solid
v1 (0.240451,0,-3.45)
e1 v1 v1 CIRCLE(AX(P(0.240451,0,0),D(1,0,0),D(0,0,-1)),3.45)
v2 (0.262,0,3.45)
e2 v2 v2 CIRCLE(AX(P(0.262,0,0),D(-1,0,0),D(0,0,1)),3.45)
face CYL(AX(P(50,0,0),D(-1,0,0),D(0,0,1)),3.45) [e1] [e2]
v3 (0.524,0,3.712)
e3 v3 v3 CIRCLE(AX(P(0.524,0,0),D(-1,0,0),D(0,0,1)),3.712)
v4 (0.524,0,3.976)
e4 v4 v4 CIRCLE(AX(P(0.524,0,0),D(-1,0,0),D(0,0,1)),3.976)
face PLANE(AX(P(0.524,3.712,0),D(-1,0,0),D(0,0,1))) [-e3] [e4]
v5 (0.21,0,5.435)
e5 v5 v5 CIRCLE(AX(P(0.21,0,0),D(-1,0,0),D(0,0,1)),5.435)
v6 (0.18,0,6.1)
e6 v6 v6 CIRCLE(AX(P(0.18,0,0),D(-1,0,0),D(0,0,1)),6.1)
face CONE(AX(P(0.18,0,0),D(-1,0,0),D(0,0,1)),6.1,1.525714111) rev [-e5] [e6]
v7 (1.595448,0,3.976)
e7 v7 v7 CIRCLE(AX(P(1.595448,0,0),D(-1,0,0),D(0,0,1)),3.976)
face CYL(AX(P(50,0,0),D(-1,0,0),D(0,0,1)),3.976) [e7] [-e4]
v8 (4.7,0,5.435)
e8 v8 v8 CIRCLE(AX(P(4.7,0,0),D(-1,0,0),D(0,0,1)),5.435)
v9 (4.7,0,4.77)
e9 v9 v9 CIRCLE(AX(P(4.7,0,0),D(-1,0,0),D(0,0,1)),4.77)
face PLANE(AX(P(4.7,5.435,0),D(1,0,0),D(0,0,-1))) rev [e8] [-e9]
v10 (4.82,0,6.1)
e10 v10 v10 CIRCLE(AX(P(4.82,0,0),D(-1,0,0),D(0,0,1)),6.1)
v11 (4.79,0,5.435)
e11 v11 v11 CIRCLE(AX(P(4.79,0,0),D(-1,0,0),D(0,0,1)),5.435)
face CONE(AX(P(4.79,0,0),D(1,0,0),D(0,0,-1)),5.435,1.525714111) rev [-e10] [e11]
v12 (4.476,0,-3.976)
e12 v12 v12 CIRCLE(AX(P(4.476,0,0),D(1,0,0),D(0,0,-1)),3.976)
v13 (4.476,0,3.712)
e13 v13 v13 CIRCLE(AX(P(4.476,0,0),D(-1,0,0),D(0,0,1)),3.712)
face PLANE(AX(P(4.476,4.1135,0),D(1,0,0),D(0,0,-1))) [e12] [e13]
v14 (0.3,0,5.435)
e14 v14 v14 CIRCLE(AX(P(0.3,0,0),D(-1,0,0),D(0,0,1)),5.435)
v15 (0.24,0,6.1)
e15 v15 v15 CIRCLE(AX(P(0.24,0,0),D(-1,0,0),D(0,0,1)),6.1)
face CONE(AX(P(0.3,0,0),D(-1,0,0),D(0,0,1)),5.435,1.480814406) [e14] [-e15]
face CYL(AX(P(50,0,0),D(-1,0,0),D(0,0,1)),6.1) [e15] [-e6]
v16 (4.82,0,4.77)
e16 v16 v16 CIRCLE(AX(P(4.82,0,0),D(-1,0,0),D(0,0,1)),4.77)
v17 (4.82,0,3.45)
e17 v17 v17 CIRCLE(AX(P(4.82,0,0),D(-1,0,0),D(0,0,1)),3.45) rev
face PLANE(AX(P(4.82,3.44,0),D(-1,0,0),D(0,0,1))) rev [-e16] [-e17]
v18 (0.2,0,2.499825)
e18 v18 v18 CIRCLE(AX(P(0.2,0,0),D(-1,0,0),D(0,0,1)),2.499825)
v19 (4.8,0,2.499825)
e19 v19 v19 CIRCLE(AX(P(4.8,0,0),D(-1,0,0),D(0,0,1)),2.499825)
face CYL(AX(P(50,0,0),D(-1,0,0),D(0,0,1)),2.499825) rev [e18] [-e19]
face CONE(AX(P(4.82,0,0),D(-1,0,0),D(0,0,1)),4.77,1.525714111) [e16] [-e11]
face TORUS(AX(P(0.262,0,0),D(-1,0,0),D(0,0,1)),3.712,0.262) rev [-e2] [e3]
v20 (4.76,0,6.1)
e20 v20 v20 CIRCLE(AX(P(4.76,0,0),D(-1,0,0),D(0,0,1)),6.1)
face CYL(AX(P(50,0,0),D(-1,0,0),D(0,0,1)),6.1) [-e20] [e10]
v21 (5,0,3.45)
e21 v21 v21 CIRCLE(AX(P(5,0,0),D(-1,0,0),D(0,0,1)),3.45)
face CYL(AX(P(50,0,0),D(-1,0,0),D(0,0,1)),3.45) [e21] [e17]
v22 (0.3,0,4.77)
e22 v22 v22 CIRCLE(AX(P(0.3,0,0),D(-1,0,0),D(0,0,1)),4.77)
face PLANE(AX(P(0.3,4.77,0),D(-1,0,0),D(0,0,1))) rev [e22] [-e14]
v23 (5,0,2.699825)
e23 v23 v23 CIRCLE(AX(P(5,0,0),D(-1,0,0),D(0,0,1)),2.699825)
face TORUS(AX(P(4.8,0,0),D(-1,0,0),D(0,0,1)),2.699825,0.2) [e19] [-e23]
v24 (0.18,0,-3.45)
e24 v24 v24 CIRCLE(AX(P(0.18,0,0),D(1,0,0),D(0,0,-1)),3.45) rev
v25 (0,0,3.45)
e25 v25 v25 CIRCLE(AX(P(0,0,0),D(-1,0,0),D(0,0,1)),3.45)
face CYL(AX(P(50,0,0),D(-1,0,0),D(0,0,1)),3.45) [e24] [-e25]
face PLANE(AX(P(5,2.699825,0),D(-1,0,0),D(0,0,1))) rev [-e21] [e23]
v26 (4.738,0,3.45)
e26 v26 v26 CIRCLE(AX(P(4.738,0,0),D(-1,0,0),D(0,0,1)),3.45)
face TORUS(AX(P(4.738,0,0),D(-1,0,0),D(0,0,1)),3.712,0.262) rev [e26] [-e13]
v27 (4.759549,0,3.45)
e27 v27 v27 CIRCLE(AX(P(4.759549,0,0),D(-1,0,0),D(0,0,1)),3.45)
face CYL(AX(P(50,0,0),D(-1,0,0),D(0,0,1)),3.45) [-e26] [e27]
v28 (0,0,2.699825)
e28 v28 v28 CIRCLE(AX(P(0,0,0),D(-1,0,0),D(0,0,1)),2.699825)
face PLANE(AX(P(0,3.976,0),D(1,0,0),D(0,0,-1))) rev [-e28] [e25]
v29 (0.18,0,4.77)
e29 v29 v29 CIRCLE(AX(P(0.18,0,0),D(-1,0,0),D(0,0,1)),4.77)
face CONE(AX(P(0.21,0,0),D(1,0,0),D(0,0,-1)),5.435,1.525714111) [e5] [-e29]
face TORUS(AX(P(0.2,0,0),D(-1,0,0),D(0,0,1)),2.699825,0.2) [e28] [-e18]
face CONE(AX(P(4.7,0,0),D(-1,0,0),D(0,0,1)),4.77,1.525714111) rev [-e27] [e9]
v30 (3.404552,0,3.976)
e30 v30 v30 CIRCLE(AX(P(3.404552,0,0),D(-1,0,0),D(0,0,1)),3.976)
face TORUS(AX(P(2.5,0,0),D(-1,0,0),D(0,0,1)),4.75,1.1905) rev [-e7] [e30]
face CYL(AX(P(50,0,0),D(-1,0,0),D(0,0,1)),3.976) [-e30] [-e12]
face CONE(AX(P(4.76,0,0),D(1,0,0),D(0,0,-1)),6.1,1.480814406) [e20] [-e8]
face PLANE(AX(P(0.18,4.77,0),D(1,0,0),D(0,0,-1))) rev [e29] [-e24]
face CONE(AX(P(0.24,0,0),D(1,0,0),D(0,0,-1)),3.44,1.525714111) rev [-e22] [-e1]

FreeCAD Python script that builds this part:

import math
import FreeCAD as App
import Part
import Sketcher

V = App.Vector


def add_polygon(sketch, points):
    """Adds a closed chain of lines whose ends are joined by coincident constraints."""
    first, n = sketch.GeometryCount, len(points)
    for a, b in zip(points, points[1:] + points[:1]):
        sketch.addGeometry(Part.LineSegment(App.Vector(*a, 0), App.Vector(*b, 0)), False)
    for i in range(n):
        sketch.addConstraint(Sketcher.Constraint("Coincident", first + i, 2, first + (i + 1) % n, 1))

doc = App.newDocument("Part")
body = doc.addObject("PartDesign::Body", "Body")

# Sketch on XY plane
sketch1 = body.newObject("Sketcher::SketchObject", "Sketch")
sketch1.AttachmentSupport = (doc.getObject("XY_Plane"), [""])
sketch1.MapMode = "FlatFace"
sketch1.addGeometry([
    Part.LineSegment(V(0.2, 2.5, 0), V(4.8, 2.5, 0)),  # 0
    Part.ArcOfCircle(Part.Circle(V(4.8, 2.7, 0), V(0, 0, 1), 0.2), math.radians(-90), math.radians(0)),  # 1
    Part.LineSegment(V(5, 2.7, 0), V(5, 3.98, 0)),  # 2
    Part.LineSegment(V(5, 3.98, 0), V(3.4, 3.98, 0)),  # 3
    Part.ArcOfCircle(Part.Circle(V(2.5, 4.75, 0), V(0, 0, 1), 1.19), math.radians(-139), math.radians(-41)),  # 4
    Part.LineSegment(V(1.6, 3.98, 0), V(0, 3.98, 0)),  # 5
    Part.LineSegment(V(0, 3.98, 0), V(0, 2.7, 0)),  # 6
    Part.ArcOfCircle(Part.Circle(V(0.2, 2.7, 0), V(0, 0, 1), 0.2), math.radians(-180), math.radians(-90)),  # 7
], False)
sketch1.addConstraint([
    Sketcher.Constraint("Tangent", 0, 2, 1, 1),
    Sketcher.Constraint("Tangent", 1, 2, 2, 1),
    Sketcher.Constraint("Coincident", 2, 2, 3, 1),
    Sketcher.Constraint("Coincident", 3, 2, 4, 2),
    Sketcher.Constraint("Coincident", 4, 1, 5, 1),
    Sketcher.Constraint("Coincident", 5, 2, 6, 1),
    Sketcher.Constraint("Tangent", 6, 2, 7, 1),
    Sketcher.Constraint("Tangent", 7, 2, 0, 1),
    Sketcher.Constraint("Horizontal", 0),
    Sketcher.Constraint("Vertical", 2),
    Sketcher.Constraint("Horizontal", 3),
    Sketcher.Constraint("Horizontal", 5),
    Sketcher.Constraint("Vertical", 6),
    Sketcher.Constraint("Equal", 1, 7),
    Sketcher.Constraint("PointOnObject", 5, 2, -2),
    Sketcher.Constraint("Horizontal", 3, 2, 4, 1),
    Sketcher.Constraint("Equal", 3, 5),
    Sketcher.Constraint("Radius", 1, 0.2),
    Sketcher.Constraint("DistanceX", 0, 1, 0, 2, 4.6),
    Sketcher.Constraint("Radius", 4, 1.1905),
    Sketcher.Constraint("DistanceY", -1, 1, 4, 3, 4.75),
    Sketcher.Constraint("DistanceY", -1, 1, 2, 2, 3.976),
    Sketcher.Constraint("DistanceY", 2, 1, 2, 2, 1.276175),
])
revolution = body.newObject("PartDesign::Revolution", "Revolution")
revolution.Profile = sketch1
revolution.ReferenceAxis = (sketch1, ["H_Axis"])
revolution.Angle = 360

# Sketch on XY plane
sketch2 = body.newObject("Sketcher::SketchObject", "Sketch001")
sketch2.AttachmentSupport = (doc.getObject("XY_Plane"), [""])
sketch2.MapMode = "FlatFace"
sketch2.addGeometry([
    Part.LineSegment(V(0, 4.64, 0), V(0, 3.45, 0)),  # 0
    Part.LineSegment(V(0, 3.45, 0), V(0.26, 3.45, 0)),  # 1
    Part.ArcOfCircle(Part.Circle(V(0.26, 3.71, 0), V(0, 0, 1), 0.26), math.radians(-90), math.radians(0)),  # 2
    Part.LineSegment(V(0.52, 3.71, 0), V(0.52, 4.11, 0)),  # 3
    Part.LineSegment(V(0.52, 4.11, 0), V(4.48, 4.11, 0)),  # 4
    Part.LineSegment(V(4.48, 4.11, 0), V(4.48, 3.71, 0)),  # 5
    Part.ArcOfCircle(Part.Circle(V(4.74, 3.71, 0), V(0, 0, 1), 0.26), math.radians(180), math.radians(270)),  # 6
    Part.LineSegment(V(4.74, 3.45, 0), V(5, 3.45, 0)),  # 7
    Part.LineSegment(V(5, 3.45, 0), V(5, 4.64, 0)),  # 8
    Part.LineSegment(V(5, 4.64, 0), V(0, 4.64, 0)),  # 9
], False)
sketch2.addConstraint([
    Sketcher.Constraint("Coincident", 0, 2, 1, 1),
    Sketcher.Constraint("Tangent", 1, 2, 2, 1),
    Sketcher.Constraint("Tangent", 2, 2, 3, 1),
    Sketcher.Constraint("Coincident", 3, 2, 4, 1),
    Sketcher.Constraint("Coincident", 4, 2, 5, 1),
    Sketcher.Constraint("Tangent", 5, 2, 6, 1),
    Sketcher.Constraint("Tangent", 6, 2, 7, 1),
    Sketcher.Constraint("Coincident", 7, 2, 8, 1),
    Sketcher.Constraint("Coincident", 8, 2, 9, 1),
    Sketcher.Constraint("Coincident", 9, 2, 0, 1),
    Sketcher.Constraint("Vertical", 0),
    Sketcher.Constraint("Horizontal", 1),
    Sketcher.Constraint("Vertical", 3),
    Sketcher.Constraint("Horizontal", 4),
    Sketcher.Constraint("Vertical", 5),
    Sketcher.Constraint("Horizontal", 7),
    Sketcher.Constraint("Vertical", 8),
    Sketcher.Constraint("Horizontal", 9),
    Sketcher.Constraint("Equal", 2, 6),
    Sketcher.Constraint("PointOnObject", 0, 2, -2),
    Sketcher.Constraint("Horizontal", 2, 3, 6, 3),
    Sketcher.Constraint("Equal", 1, 7),
    Sketcher.Constraint("DistanceX", 9, 2, 9, 1, 5.0),
    Sketcher.Constraint("Radius", 2, 0.262),
    Sketcher.Constraint("DistanceX", 1, 1, 1, 2, 0.262),
    Sketcher.Constraint("DistanceY", -1, 1, 0, 2, 3.45),
    Sketcher.Constraint("DistanceY", 0, 2, 0, 1, 1.1875),
    Sketcher.Constraint("DistanceY", 3, 1, 3, 2, 0.4015),
])
groove = body.newObject("PartDesign::Groove", "Groove")
groove.Profile = sketch2
groove.ReferenceAxis = (sketch2, ["H_Axis"])
groove.Angle = 360

# Sketch on XY plane
sketch3 = body.newObject("Sketcher::SketchObject", "Sketch002")
sketch3.AttachmentSupport = (doc.getObject("XY_Plane"), [""])
sketch3.MapMode = "FlatFace"
add_polygon(sketch3, [(0.18, 6.1), (0.21, 5.43), (0.18, 4.77), (0.18, 3.44), (0.24, 3.44), (0.3, 4.77), (0.3, 5.43), (0.24, 6.1)])  # lines 0-7
sketch3.addConstraint([
    Sketcher.Constraint("Vertical", 2),
    Sketcher.Constraint("Horizontal", 3),
    Sketcher.Constraint("Vertical", 5),
    Sketcher.Constraint("Horizontal", 7),
    Sketcher.Constraint("Parallel", 1, 4),
    Sketcher.Constraint("Horizontal", 1, 2, 4, 2),
    Sketcher.Constraint("Horizontal", 0, 2, 5, 2),
    Sketcher.Constraint("Vertical", 3, 2, 6, 2),
    Sketcher.Constraint("Vertical", 2, 2, 7, 2),
    Sketcher.Constraint("Equal", 0, 1),
    Sketcher.Constraint("DistanceX", 3, 1, 3, 2, 0.06),
    Sketcher.Constraint("DistanceY", 2, 2, 2, 1, 1.33),
    Sketcher.Constraint("DistanceX", -1, 1, 4, 2, 0.3),
    Sketcher.Constraint("DistanceY", -1, 1, 6, 2, 6.1),
    Sketcher.Constraint("DistanceY", 5, 1, 5, 2, 0.665),
    Sketcher.Constraint("DistanceX", -1, 1, 0, 2, 0.21),
])
revolution2 = body.newObject("PartDesign::Revolution", "Revolution001")
revolution2.Profile = sketch3
revolution2.ReferenceAxis = (sketch3, ["H_Axis"])
revolution2.Angle = 360

# Sketch on XY plane
sketch4 = body.newObject("Sketcher::SketchObject", "Sketch003")
sketch4.AttachmentSupport = (doc.getObject("XY_Plane"), [""])
sketch4.MapMode = "FlatFace"
add_polygon(sketch4, [(4.7, 5.43), (4.7, 4.77), (4.76, 3.44), (4.82, 3.44), (4.82, 4.77), (4.79, 5.43), (4.82, 6.1), (4.76, 6.1)])  # lines 0-7
sketch4.addConstraint([
    Sketcher.Constraint("Vertical", 0),
    Sketcher.Constraint("Horizontal", 2),
    Sketcher.Constraint("Vertical", 3),
    Sketcher.Constraint("Horizontal", 6),
    Sketcher.Constraint("Parallel", 1, 4),
    Sketcher.Constraint("Horizontal", 0, 2, 3, 2),
    Sketcher.Constraint("Horizontal", 4, 2, 7, 2),
    Sketcher.Constraint("Vertical", 3, 2, 5, 2),
    Sketcher.Constraint("Vertical", 1, 2, 6, 2),
    Sketcher.Constraint("Equal", 4, 5),
    Sketcher.Constraint("DistanceX", 2, 1, 2, 2, 0.06),
    Sketcher.Constraint("DistanceY", 3, 1, 3, 2, 1.33),
    Sketcher.Constraint("DistanceX", -1, 1, 0, 2, 4.7),
    Sketcher.Constraint("DistanceY", -1, 1, 5, 2, 6.1),
    Sketcher.Constraint("DistanceY", 0, 2, 0, 1, 0.665),
    Sketcher.Constraint("DistanceX", -1, 1, 1, 2, 4.76),
])
revolution3 = body.newObject("PartDesign::Revolution", "Revolution002")
revolution3.Profile = sketch4
revolution3.ReferenceAxis = (sketch4, ["H_Axis"])
revolution3.Angle = 360

doc.recompute()
